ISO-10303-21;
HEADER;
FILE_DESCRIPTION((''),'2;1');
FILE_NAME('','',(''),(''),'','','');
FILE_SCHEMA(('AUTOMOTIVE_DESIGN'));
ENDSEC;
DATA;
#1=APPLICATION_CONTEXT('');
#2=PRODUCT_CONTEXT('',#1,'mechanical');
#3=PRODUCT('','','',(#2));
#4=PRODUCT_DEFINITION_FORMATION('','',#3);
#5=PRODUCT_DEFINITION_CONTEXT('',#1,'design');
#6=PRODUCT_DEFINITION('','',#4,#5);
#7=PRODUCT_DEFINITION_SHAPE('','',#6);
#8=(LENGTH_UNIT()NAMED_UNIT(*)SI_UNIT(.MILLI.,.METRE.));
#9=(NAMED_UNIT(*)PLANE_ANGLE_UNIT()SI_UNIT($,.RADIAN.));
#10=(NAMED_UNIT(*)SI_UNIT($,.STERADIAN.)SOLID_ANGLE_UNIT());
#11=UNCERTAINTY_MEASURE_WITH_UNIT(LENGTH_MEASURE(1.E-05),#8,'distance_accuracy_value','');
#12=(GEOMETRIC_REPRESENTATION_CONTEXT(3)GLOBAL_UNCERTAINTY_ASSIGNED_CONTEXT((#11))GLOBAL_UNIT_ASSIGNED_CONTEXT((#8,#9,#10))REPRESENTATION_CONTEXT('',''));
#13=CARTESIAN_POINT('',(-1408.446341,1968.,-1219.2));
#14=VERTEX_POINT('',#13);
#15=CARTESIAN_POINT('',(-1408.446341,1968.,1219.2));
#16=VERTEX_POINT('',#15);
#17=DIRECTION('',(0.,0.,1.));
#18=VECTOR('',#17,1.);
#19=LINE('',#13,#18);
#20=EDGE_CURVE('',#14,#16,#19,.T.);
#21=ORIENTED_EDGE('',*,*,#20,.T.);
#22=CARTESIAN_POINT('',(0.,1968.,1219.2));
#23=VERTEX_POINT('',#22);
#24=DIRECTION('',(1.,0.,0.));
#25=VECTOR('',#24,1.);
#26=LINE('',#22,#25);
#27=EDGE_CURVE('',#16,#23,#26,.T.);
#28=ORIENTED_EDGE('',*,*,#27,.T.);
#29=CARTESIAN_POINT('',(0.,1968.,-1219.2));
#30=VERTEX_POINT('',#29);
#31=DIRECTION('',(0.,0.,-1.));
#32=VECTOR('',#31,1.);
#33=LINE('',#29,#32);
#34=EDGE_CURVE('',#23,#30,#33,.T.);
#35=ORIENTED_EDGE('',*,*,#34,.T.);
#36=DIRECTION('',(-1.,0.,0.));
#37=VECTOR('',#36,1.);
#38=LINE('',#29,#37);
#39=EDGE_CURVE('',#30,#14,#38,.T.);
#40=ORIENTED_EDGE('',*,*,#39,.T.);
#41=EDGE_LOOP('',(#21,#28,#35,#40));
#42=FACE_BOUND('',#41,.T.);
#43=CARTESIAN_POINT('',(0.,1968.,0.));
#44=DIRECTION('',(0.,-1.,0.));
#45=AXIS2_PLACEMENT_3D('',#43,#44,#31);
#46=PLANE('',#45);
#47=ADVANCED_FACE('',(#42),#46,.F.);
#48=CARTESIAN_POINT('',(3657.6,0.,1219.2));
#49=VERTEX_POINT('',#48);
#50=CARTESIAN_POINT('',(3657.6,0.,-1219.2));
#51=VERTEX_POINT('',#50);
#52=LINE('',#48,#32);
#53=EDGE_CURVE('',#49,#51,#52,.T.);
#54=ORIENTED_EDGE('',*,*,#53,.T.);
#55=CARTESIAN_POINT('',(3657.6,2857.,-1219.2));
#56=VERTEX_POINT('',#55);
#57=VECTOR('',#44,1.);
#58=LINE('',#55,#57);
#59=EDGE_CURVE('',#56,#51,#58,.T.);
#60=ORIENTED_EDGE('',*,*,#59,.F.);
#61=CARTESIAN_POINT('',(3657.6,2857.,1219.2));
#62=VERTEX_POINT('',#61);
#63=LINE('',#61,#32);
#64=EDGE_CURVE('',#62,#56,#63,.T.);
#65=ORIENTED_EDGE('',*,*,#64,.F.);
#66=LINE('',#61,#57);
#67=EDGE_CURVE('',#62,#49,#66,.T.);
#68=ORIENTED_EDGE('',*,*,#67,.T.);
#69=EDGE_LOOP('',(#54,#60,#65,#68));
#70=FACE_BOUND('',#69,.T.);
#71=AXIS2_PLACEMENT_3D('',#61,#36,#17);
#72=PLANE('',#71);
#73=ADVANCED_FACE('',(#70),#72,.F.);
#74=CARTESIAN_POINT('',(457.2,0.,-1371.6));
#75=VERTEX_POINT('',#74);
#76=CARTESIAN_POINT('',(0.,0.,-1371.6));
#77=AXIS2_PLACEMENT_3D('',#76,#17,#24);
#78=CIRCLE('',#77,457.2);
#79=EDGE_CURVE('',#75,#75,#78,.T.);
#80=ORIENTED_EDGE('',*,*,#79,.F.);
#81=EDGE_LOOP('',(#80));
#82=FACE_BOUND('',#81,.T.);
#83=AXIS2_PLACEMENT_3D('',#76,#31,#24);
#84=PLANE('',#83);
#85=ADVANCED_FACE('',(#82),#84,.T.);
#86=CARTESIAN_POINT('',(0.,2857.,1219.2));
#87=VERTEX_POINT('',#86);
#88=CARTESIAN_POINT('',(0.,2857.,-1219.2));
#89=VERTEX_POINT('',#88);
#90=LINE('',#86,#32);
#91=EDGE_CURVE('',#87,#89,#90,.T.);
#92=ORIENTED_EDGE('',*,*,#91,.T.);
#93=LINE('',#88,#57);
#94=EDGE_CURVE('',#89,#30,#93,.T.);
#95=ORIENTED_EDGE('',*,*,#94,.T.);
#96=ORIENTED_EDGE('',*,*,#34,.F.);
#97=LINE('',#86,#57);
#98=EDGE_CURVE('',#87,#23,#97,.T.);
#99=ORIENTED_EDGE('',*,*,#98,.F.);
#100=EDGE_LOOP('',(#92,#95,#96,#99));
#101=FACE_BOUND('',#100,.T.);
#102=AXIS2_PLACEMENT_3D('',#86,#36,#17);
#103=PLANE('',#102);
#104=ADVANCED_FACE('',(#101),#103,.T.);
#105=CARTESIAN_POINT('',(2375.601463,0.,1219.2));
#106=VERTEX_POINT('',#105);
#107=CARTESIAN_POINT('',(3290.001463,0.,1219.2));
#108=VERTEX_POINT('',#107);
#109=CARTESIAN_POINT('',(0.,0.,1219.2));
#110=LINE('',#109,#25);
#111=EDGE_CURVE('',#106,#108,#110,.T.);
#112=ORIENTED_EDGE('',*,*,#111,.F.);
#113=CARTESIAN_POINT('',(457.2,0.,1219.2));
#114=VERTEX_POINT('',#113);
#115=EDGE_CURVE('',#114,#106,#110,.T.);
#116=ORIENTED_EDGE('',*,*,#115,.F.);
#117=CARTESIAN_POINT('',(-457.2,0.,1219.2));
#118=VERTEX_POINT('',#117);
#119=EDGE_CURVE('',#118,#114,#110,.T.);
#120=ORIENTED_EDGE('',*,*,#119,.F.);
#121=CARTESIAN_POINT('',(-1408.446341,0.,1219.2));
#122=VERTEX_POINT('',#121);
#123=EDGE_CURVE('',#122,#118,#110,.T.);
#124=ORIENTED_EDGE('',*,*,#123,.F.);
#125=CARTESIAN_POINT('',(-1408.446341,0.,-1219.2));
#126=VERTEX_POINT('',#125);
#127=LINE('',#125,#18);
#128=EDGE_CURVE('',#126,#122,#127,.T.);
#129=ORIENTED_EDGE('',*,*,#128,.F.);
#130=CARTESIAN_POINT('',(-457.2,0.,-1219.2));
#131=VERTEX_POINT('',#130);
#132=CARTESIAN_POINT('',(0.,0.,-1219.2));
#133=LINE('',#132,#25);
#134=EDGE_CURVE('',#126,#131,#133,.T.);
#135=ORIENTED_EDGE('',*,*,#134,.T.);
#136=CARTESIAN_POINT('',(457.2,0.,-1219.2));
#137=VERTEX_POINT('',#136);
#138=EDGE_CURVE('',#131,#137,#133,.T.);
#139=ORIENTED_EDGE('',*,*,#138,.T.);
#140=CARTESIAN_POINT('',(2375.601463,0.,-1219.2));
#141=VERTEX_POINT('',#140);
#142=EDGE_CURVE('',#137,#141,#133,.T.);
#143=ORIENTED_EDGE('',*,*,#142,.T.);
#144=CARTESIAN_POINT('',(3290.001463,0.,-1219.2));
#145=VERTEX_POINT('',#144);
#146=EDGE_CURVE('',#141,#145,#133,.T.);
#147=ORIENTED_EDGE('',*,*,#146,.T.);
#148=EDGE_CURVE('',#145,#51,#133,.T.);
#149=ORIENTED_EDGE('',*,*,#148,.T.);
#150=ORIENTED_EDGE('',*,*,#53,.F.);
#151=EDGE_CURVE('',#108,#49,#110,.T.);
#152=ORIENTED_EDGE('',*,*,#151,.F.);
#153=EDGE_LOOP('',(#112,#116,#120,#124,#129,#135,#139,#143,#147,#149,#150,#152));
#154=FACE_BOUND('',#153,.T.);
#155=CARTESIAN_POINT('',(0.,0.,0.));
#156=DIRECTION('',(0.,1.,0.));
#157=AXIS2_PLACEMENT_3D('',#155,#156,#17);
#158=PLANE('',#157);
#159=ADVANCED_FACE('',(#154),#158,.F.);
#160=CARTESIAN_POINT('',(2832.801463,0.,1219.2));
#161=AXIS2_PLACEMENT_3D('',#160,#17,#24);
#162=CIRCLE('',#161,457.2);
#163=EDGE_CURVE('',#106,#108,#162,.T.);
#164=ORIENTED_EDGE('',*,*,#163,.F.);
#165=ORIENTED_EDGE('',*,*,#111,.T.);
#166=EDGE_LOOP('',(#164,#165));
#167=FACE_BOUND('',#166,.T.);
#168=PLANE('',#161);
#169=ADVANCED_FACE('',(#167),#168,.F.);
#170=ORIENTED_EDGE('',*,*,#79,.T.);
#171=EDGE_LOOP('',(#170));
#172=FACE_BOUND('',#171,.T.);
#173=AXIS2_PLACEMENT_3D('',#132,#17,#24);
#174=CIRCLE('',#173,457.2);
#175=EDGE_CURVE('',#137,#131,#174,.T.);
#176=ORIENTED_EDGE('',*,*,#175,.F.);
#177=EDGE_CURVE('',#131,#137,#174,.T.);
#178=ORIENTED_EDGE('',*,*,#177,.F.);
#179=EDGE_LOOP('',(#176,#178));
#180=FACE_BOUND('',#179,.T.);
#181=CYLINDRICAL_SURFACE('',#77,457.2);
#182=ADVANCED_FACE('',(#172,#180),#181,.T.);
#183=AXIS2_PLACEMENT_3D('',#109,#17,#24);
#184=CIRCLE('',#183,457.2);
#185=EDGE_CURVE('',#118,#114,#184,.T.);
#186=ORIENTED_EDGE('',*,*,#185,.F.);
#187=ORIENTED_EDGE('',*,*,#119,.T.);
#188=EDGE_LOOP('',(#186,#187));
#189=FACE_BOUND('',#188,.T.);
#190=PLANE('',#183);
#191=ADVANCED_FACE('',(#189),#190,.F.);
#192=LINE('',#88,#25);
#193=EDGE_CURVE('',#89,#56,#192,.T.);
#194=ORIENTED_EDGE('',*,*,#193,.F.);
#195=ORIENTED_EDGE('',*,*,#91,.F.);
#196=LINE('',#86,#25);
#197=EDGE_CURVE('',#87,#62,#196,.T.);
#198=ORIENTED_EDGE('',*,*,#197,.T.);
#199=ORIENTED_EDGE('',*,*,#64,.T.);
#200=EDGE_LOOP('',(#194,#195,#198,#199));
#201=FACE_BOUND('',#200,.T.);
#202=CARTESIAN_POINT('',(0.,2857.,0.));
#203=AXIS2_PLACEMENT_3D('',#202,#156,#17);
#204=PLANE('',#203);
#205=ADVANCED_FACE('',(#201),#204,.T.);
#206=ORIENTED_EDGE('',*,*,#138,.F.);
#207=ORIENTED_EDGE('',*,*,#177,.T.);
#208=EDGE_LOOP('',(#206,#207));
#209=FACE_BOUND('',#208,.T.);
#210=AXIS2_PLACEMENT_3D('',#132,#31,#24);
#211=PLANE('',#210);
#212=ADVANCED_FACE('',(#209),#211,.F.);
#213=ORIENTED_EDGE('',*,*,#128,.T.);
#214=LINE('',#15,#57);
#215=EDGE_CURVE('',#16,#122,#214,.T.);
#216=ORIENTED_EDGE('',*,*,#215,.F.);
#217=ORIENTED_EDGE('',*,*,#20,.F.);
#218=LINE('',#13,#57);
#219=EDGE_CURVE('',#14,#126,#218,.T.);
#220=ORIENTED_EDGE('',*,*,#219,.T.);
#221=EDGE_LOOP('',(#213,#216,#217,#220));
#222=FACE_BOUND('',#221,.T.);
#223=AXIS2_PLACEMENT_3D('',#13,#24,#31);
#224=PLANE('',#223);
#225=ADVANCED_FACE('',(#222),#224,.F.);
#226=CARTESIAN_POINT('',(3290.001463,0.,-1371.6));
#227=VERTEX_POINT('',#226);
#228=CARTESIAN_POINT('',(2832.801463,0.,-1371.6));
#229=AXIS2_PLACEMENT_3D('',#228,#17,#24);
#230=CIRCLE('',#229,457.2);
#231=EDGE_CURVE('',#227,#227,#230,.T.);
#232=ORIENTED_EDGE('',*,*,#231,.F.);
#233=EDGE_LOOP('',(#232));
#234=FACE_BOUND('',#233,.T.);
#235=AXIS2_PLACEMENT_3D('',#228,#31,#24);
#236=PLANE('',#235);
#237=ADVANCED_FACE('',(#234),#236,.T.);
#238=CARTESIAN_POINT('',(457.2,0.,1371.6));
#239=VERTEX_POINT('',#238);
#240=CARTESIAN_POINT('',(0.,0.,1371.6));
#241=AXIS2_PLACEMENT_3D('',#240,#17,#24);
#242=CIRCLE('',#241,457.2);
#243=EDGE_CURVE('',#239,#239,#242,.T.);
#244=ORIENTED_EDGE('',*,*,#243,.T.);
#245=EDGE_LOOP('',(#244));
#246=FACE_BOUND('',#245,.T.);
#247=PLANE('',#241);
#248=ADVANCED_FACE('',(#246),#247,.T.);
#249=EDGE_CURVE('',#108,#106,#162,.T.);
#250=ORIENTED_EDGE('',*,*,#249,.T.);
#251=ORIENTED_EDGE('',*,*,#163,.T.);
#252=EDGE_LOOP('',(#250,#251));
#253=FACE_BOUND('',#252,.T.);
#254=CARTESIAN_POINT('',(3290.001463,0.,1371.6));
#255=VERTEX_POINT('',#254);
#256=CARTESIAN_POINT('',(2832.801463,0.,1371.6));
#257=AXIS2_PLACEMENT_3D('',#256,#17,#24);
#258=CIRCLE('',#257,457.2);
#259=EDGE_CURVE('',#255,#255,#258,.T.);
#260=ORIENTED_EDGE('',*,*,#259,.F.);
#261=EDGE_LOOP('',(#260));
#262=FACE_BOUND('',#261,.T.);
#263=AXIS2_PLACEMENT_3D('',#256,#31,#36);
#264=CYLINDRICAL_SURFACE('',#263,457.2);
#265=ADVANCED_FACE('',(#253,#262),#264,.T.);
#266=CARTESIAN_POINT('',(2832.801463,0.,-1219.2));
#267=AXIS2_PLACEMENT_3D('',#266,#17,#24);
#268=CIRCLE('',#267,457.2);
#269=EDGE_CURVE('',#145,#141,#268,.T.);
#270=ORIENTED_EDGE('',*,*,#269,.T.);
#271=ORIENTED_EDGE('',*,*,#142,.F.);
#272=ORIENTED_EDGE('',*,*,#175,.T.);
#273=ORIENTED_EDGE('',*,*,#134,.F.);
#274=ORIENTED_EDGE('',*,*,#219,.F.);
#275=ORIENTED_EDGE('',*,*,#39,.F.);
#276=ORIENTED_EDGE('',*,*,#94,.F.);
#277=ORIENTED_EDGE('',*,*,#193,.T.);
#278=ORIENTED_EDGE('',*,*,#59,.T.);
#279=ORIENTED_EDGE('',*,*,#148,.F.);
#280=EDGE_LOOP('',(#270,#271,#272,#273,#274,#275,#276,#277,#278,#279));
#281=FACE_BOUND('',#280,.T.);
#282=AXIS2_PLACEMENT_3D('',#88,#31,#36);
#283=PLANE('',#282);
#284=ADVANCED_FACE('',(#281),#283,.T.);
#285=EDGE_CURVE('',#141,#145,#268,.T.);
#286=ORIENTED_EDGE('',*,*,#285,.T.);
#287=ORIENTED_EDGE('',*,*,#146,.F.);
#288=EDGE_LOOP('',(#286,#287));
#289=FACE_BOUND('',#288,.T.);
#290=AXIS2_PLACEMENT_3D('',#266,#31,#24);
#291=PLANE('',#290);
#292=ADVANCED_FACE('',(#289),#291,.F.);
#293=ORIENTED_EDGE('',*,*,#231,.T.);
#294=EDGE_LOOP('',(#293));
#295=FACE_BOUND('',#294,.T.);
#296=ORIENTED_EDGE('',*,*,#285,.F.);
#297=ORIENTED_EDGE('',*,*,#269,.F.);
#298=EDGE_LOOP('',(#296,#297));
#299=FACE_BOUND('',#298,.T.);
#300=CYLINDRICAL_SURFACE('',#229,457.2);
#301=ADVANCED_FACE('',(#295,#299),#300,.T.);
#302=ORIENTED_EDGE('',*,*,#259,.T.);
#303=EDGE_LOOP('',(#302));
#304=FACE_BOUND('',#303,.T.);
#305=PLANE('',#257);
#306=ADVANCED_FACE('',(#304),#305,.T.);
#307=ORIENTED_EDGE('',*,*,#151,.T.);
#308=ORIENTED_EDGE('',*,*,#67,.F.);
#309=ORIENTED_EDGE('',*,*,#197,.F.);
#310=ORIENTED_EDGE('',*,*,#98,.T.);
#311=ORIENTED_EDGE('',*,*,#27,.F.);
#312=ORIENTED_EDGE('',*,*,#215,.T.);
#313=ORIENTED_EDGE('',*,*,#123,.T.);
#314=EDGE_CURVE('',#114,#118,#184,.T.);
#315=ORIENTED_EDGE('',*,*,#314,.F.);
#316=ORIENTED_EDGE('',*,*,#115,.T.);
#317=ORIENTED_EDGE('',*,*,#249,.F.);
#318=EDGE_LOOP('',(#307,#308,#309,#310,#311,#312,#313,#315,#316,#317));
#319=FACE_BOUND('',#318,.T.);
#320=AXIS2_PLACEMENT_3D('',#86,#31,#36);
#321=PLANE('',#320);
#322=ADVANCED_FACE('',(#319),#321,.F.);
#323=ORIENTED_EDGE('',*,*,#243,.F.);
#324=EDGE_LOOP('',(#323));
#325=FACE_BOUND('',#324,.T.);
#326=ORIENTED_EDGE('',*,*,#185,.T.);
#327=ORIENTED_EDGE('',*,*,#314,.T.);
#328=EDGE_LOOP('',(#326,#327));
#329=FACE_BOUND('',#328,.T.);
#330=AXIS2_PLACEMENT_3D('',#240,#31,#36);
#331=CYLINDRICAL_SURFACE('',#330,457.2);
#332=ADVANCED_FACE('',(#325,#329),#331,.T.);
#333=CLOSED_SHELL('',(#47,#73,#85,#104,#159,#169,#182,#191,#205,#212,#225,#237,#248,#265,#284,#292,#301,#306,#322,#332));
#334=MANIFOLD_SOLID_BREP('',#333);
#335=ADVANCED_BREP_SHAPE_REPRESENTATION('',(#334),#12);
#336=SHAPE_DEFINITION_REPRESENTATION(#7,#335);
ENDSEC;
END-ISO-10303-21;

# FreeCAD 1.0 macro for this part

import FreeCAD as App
import Part
import Sketcher
from FreeCAD import Vector
Q = App.Units.Quantity

doc = App.newDocument("Part")
body = doc.addObject("PartDesign::Body", "Body")

sketch1 = doc.addObject("Sketcher::SketchObject", "Sketch")
body.addObject(sketch1)
sketch1.AttachmentSupport = (doc.XZ_Plane, [""])
sketch1.MapMode = "FlatFace"
sketch1.addGeometry(Part.LineSegment(Vector(0, -1219.2, 0), Vector(0, 1219.2, 0)), False)
sketch1.addGeometry(Part.LineSegment(Vector(0, 1219.2, 0), Vector(3657.6, 1219.2, 0)), False)
sketch1.addGeometry(Part.LineSegment(Vector(3657.6, 1219.2, 0), Vector(3657.6, -1219.2, 0)), False)
sketch1.addGeometry(Part.LineSegment(Vector(3657.6, -1219.2, 0), Vector(0, -1219.2, 0)), False)
sketch1.addConstraint(Sketcher.Constraint("Coincident", 0, 2, 1, 1))
sketch1.addConstraint(Sketcher.Constraint("Coincident", 1, 2, 2, 1))
sketch1.addConstraint(Sketcher.Constraint("Coincident", 2, 2, 3, 1))
sketch1.addConstraint(Sketcher.Constraint("Coincident", 3, 2, 0, 1))
sketch1.addConstraint(Sketcher.Constraint("Vertical", 0))
sketch1.addConstraint(Sketcher.Constraint("Horizontal", 1))
sketch1.addConstraint(Sketcher.Constraint("Vertical", 2))
sketch1.addConstraint(Sketcher.Constraint("Horizontal", 3))
sketch1.addConstraint(Sketcher.Constraint("Symmetric", 0, 2, 3, 2, -1, 1))
sketch1.addConstraint(Sketcher.Constraint("DistanceX", 1, 1, 1, 2, Q("144 in")))
sketch1.addConstraint(Sketcher.Constraint("DistanceY", 0, 1, 0, 2, Q("96 in")))
pad1 = doc.addObject("PartDesign::Pad", "Pad")
body.addObject(pad1)
pad1.Profile = sketch1
pad1.Length = 2857
pad1.Reversed = True

sketch2 = doc.addObject("Sketcher::SketchObject", "Sketch001")
body.addObject(sketch2)
sketch2.AttachmentSupport = (doc.XZ_Plane, [""])
sketch2.MapMode = "FlatFace"
sketch2.addGeometry(Part.LineSegment(Vector(-1408.446341, -1219.2, 0), Vector(-1408.446341, 1219.2, 0)), False)
sketch2.addGeometry(Part.LineSegment(Vector(-1408.446341, 1219.2, 0), Vector(0, 1219.2, 0)), False)
sketch2.addGeometry(Part.LineSegment(Vector(0, 1219.2, 0), Vector(0, -1219.2, 0)), False)
sketch2.addGeometry(Part.LineSegment(Vector(0, -1219.2, 0), Vector(-1408.446341, -1219.2, 0)), False)
sketch2.addConstraint(Sketcher.Constraint("Coincident", 0, 2, 1, 1))
sketch2.addConstraint(Sketcher.Constraint("Coincident", 1, 2, 2, 1))
sketch2.addConstraint(Sketcher.Constraint("Coincident", 2, 2, 3, 1))
sketch2.addConstraint(Sketcher.Constraint("Coincident", 3, 2, 0, 1))
sketch2.addConstraint(Sketcher.Constraint("Vertical", 0))
sketch2.addConstraint(Sketcher.Constraint("Horizontal", 1))
sketch2.addConstraint(Sketcher.Constraint("Vertical", 2))
sketch2.addConstraint(Sketcher.Constraint("Horizontal", 3))
sketch2.addConstraint(Sketcher.Constraint("Symmetric", 1, 2, 2, 2, -1, 1))
sketch2.addConstraint(Sketcher.Constraint("DistanceY", 0, 1, 0, 2, Q("96 in")))
sketch2.addConstraint(Sketcher.Constraint("DistanceX", 1, 1, 1, 2, 1408.446341))
pad2 = doc.addObject("PartDesign::Pad", "Pad001")
body.addObject(pad2)
pad2.Profile = sketch2
pad2.Length = 1968
pad2.Reversed = True

sketch3 = doc.addObject("Sketcher::SketchObject", "Sketch002")
body.addObject(sketch3)
sketch3.AttachmentSupport = (doc.XY_Plane, [""])
sketch3.MapMode = "FlatFace"
sketch3.AttachmentOffset = App.Placement(Vector(0, 0, 48 * 25.4), App.Rotation())
sketch3.addGeometry(Part.Circle(Vector(0, 0, 0), Vector(0, 0, 1), 457.2), False)
sketch3.addGeometry(Part.Circle(Vector(2832.801463, 0, 0), Vector(0, 0, 1), 457.2), False)
sketch3.addConstraint(Sketcher.Constraint("Coincident", 0, 3, -1, 1))
sketch3.addConstraint(Sketcher.Constraint("Equal", 0, 1))
sketch3.addConstraint(Sketcher.Constraint("PointOnObject", 1, 3, -1))
sketch3.addConstraint(Sketcher.Constraint("Diameter", 0, Q("36 in")))
sketch3.addConstraint(Sketcher.Constraint("DistanceX", -1, 1, 1, 3, 2832.801463))
pad3 = doc.addObject("PartDesign::Pad", "Pad002")
body.addObject(pad3)
pad3.Profile = sketch3
pad3.Length = Q("6 in")
doc.recompute()

mirrored = doc.addObject("PartDesign::Mirrored", "Mirrored")
body.addObject(mirrored)
mirrored.Originals = [pad3]
mirrored.MirrorPlane = (doc.XY_Plane, [""])
body.Tip = mirrored

doc.recompute()
